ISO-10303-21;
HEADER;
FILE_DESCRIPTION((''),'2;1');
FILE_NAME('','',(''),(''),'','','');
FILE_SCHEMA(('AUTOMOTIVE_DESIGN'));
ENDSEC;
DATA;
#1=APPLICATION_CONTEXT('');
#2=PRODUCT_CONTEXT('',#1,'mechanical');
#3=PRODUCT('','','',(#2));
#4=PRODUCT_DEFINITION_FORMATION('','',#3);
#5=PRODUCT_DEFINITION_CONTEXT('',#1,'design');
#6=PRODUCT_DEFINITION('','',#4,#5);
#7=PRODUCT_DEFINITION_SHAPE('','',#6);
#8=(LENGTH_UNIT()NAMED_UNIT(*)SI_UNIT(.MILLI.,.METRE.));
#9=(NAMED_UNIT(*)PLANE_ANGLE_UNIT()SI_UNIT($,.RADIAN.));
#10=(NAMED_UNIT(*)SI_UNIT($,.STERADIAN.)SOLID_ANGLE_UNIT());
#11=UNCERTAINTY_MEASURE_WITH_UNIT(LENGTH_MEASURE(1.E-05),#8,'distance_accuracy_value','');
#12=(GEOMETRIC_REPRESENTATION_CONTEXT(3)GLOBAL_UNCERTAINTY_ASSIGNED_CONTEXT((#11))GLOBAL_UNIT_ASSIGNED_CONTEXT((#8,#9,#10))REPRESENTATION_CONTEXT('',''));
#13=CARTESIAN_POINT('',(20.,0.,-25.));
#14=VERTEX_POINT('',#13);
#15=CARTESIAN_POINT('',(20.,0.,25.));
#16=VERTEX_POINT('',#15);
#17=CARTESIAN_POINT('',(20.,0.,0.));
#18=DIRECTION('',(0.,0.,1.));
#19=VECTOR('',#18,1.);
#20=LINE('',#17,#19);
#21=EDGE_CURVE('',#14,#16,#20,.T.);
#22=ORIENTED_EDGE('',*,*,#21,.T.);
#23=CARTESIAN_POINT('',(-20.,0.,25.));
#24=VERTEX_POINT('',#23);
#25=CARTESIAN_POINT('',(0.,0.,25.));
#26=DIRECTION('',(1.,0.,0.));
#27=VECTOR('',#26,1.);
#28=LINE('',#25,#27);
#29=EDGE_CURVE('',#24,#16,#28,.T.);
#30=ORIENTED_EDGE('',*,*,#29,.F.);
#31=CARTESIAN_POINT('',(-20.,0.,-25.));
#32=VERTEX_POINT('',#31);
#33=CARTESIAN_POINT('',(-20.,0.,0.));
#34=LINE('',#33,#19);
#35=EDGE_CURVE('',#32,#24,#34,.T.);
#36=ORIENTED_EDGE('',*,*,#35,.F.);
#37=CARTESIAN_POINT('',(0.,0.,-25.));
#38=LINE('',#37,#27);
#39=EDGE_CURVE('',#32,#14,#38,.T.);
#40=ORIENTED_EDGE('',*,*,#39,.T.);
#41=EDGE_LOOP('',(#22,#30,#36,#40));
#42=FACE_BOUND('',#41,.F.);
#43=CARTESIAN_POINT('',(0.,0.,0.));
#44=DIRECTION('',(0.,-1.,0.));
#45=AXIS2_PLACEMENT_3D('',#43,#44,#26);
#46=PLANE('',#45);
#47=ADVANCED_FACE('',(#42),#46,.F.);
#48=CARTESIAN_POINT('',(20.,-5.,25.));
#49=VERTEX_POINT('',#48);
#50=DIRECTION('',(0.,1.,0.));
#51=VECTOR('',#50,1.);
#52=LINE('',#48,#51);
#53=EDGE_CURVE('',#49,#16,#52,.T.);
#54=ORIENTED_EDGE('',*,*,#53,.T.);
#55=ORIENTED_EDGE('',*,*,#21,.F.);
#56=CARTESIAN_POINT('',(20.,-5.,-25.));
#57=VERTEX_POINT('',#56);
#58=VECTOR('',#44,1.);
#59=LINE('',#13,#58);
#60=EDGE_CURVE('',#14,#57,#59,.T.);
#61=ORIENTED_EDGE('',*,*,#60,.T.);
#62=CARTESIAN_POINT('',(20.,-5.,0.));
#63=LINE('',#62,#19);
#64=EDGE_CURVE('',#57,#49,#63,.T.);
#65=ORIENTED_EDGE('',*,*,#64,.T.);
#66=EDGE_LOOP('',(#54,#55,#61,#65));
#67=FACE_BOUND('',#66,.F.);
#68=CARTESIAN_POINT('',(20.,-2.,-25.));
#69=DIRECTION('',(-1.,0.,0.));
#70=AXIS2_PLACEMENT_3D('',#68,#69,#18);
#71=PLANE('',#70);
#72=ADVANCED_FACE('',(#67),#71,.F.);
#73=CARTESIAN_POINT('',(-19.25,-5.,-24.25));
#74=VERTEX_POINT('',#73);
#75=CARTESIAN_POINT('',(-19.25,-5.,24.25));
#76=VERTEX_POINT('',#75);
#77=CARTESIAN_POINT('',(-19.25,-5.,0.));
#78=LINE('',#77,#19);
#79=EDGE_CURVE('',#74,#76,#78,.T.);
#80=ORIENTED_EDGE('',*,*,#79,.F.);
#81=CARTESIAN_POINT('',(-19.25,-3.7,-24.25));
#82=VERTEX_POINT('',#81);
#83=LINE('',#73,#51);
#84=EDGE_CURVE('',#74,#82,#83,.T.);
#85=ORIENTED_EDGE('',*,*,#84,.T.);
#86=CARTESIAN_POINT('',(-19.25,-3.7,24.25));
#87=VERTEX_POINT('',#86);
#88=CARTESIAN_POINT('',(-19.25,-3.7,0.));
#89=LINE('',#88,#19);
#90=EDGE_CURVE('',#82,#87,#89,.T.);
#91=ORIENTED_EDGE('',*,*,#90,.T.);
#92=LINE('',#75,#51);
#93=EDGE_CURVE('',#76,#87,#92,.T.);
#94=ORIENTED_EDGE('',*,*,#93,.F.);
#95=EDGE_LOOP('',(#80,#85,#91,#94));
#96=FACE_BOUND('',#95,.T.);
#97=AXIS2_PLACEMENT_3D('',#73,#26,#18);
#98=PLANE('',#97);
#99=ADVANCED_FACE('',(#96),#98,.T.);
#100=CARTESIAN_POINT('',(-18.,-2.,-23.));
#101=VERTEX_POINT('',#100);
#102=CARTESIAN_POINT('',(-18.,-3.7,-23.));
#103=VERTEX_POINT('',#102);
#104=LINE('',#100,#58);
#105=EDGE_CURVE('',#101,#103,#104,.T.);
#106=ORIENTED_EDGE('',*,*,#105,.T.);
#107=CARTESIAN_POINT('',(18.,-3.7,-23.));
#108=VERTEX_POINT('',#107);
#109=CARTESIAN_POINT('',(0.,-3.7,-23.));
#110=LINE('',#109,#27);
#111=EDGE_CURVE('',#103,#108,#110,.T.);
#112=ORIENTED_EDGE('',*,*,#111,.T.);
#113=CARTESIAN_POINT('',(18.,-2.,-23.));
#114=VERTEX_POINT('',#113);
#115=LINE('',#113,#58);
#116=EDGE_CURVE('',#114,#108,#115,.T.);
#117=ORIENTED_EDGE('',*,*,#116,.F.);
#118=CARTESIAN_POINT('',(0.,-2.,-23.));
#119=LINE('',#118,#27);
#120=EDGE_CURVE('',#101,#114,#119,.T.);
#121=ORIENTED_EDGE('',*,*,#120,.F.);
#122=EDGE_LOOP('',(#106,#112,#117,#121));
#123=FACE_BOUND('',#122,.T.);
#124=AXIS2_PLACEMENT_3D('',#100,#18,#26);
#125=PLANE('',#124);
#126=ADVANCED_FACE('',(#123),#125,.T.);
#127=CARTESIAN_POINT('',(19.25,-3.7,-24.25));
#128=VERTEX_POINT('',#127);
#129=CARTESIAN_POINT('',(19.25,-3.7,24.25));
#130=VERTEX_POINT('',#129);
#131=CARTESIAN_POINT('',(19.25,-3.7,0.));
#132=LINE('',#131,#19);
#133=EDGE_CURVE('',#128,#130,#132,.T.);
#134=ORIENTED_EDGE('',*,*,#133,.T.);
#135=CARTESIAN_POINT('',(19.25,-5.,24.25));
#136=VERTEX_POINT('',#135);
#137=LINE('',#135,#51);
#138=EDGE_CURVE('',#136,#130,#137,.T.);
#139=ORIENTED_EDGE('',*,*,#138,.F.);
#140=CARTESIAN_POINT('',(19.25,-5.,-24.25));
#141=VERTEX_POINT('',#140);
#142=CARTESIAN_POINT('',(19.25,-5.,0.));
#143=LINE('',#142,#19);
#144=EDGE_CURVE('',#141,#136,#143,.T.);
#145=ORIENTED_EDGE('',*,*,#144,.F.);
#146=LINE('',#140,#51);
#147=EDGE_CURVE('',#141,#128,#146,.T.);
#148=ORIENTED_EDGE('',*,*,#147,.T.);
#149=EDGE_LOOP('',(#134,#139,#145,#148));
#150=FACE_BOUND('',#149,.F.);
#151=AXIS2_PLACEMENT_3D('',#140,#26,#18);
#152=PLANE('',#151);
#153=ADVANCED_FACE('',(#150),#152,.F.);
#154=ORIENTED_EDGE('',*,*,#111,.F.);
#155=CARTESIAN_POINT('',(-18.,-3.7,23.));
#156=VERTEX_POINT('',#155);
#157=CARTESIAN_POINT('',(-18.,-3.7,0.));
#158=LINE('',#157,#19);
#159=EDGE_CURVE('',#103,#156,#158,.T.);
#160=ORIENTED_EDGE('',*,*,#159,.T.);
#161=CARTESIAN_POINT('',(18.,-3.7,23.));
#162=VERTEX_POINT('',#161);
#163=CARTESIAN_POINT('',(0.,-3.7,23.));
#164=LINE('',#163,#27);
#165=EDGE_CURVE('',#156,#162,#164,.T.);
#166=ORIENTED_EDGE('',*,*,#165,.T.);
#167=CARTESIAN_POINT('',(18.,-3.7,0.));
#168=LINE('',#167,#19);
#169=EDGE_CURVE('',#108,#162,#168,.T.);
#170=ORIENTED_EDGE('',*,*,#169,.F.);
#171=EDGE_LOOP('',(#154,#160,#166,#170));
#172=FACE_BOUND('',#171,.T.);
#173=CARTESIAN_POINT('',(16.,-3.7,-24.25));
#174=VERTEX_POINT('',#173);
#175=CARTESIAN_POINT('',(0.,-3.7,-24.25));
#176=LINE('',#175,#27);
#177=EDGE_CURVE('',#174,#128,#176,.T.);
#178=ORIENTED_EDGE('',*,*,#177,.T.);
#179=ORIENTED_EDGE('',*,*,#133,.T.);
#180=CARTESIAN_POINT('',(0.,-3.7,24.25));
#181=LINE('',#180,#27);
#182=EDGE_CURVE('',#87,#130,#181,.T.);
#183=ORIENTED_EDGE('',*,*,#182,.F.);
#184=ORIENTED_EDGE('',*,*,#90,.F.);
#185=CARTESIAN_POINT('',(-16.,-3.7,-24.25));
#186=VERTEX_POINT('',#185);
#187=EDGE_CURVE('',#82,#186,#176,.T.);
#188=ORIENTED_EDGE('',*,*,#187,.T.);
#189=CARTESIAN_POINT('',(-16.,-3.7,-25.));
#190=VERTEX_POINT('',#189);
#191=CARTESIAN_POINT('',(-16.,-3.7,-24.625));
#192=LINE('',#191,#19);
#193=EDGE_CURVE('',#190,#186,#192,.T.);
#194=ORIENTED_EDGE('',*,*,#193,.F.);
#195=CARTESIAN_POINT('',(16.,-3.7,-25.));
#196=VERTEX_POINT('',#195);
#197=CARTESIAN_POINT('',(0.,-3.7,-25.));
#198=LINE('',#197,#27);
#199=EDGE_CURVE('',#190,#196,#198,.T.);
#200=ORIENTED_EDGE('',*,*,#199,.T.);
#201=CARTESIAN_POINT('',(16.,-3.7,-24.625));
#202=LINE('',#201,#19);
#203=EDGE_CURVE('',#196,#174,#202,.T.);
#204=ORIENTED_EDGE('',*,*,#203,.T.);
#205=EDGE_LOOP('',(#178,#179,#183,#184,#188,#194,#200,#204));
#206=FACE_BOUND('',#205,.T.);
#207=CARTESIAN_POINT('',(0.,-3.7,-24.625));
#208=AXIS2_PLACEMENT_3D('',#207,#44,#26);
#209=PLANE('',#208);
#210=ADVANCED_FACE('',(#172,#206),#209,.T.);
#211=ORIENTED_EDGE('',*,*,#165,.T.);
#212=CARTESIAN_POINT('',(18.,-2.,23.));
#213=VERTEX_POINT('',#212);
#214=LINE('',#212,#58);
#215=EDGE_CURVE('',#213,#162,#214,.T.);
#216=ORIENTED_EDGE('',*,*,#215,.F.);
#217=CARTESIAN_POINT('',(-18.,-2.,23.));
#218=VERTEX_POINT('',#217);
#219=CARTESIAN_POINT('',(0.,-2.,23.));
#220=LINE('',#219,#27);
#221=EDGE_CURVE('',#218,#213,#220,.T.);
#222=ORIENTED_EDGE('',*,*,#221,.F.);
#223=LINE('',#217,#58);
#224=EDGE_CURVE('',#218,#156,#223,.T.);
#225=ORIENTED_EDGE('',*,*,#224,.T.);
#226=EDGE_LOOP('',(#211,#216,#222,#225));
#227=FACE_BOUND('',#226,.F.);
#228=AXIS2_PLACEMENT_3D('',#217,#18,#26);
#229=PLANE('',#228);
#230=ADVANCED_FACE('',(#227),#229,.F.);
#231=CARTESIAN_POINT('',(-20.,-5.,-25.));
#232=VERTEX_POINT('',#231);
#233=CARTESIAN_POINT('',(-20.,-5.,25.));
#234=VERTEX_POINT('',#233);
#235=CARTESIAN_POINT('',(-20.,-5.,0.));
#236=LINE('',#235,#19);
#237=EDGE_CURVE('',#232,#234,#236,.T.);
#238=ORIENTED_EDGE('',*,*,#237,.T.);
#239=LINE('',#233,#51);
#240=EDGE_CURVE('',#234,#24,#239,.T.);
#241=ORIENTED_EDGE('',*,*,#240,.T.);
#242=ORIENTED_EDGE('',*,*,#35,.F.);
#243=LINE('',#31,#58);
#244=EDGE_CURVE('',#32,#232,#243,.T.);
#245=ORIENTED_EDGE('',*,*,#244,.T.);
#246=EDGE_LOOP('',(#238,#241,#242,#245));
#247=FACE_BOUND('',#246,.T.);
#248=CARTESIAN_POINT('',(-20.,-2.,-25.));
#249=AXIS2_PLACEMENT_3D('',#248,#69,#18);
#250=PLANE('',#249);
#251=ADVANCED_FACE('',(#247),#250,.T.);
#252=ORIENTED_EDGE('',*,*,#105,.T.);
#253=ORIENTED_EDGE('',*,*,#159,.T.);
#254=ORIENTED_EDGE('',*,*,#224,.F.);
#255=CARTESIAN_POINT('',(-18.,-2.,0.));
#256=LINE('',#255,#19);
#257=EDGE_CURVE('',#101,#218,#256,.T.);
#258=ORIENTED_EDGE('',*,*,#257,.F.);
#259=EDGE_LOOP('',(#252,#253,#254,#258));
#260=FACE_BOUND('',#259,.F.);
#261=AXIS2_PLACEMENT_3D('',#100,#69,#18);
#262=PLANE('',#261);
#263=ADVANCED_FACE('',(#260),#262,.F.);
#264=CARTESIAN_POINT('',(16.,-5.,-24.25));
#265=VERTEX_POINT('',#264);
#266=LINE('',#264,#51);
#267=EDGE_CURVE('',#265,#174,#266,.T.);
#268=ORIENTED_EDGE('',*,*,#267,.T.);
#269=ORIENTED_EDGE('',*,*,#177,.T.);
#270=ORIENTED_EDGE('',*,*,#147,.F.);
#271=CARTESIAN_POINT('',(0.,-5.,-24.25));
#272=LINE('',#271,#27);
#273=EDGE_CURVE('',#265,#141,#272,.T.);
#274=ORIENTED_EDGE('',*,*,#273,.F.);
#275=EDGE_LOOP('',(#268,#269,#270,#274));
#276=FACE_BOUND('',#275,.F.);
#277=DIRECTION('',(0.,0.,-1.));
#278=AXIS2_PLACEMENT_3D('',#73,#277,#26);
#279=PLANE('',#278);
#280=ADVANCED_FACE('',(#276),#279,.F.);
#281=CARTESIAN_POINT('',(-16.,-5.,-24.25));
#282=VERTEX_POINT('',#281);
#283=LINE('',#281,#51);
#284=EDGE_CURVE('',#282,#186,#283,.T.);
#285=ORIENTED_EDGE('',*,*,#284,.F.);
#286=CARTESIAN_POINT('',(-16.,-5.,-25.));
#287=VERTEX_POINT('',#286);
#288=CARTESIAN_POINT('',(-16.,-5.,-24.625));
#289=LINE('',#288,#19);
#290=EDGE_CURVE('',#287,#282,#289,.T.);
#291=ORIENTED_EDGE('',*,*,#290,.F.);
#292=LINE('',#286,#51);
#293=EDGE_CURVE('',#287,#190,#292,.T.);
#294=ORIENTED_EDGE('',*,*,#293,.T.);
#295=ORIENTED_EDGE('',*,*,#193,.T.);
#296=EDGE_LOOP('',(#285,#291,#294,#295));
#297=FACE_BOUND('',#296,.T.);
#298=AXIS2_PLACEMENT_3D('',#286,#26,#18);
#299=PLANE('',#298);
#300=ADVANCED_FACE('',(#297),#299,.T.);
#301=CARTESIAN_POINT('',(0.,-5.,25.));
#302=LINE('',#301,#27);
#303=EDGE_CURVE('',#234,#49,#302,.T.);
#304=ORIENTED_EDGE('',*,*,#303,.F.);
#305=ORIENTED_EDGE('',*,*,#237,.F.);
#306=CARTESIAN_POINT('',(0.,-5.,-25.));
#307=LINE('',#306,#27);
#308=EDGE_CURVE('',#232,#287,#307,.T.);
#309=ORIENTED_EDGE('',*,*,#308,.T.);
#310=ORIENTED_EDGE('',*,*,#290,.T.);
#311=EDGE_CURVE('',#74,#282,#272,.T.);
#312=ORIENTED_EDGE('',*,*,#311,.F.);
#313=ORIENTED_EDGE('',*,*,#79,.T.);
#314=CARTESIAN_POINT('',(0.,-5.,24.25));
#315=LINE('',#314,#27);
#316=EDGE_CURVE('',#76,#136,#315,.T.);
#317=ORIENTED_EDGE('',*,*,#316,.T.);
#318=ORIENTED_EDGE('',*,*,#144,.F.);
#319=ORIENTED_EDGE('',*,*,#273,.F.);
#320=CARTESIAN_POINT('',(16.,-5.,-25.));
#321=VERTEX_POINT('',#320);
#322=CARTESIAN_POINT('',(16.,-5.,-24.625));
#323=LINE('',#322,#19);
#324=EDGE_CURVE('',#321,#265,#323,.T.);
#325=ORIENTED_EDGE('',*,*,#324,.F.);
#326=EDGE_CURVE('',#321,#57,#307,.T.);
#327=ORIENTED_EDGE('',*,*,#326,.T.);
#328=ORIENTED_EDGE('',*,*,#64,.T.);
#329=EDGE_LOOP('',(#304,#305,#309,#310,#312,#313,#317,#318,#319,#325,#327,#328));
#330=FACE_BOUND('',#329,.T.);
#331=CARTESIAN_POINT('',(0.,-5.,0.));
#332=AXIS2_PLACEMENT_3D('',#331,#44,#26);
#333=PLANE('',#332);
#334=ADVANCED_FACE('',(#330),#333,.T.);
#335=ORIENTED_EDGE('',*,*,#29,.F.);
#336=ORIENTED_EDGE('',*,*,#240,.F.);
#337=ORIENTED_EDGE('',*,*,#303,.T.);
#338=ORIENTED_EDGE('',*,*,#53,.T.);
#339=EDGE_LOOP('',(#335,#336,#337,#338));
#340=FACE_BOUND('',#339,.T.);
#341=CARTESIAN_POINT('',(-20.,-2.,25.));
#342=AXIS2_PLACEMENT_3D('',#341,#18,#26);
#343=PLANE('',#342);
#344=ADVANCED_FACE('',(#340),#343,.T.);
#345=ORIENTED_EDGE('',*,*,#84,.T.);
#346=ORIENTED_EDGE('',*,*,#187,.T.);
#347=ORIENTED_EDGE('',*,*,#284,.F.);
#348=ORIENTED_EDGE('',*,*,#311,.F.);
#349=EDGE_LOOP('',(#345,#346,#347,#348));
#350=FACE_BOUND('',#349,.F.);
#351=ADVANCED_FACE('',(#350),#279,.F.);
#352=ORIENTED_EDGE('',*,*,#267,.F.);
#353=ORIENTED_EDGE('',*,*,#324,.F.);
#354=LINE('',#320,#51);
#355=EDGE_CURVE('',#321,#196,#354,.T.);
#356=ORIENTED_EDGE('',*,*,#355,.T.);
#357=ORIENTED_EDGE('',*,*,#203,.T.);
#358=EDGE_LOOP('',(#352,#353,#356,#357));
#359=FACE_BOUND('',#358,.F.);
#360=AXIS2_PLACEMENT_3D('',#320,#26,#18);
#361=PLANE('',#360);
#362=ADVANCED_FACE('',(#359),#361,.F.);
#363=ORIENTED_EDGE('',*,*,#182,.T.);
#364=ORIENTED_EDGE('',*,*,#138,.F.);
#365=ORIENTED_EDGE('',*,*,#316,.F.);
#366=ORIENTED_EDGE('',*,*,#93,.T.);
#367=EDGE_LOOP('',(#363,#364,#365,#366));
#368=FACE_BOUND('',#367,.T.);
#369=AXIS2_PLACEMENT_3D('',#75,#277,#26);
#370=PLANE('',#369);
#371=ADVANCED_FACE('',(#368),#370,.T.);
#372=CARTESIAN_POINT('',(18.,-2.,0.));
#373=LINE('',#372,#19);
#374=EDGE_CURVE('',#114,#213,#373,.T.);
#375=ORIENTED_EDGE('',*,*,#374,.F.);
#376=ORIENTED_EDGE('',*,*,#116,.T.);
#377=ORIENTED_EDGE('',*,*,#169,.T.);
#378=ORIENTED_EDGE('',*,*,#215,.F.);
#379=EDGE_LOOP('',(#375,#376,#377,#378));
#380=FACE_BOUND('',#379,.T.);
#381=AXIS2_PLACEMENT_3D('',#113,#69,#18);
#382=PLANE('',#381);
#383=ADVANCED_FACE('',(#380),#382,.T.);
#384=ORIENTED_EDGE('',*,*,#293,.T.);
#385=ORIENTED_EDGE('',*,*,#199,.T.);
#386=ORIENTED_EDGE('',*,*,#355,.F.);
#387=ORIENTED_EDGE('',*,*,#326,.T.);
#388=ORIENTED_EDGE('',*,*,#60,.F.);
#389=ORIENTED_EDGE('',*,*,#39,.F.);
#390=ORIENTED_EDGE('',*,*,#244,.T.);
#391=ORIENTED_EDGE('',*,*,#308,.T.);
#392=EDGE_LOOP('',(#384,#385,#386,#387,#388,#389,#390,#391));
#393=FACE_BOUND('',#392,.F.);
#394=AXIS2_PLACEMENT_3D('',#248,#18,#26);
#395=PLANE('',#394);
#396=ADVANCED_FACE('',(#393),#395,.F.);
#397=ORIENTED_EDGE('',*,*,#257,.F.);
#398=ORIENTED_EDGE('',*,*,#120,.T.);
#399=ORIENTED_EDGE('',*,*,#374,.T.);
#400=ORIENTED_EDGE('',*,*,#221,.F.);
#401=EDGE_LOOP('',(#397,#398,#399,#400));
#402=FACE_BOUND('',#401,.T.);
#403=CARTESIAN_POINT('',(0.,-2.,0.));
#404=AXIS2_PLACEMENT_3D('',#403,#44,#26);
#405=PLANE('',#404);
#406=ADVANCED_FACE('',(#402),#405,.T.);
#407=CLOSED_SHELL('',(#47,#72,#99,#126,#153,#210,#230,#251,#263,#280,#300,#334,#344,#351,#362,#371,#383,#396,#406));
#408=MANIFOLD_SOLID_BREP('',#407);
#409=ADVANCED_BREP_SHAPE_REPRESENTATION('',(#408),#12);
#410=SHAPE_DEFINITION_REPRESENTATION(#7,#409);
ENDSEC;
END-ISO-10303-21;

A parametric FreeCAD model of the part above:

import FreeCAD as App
import Part
import Sketcher
from FreeCAD import Vector

doc = App.newDocument("Part")
body = doc.addObject("PartDesign::Body", "Body")

sketch1 = body.newObject("Sketcher::SketchObject", "Sketch")
sketch1.AttachmentSupport = (doc.getObject("XZ_Plane"), [""])
sketch1.MapMode = "FlatFace"
sketch1.addGeometry([
    Part.LineSegment(Vector(-20, 25, 0), Vector(-20, -25, 0)),
    Part.LineSegment(Vector(-20, -25, 0), Vector(20, -25, 0)),
    Part.LineSegment(Vector(20, -25, 0), Vector(20, 25, 0)),
    Part.LineSegment(Vector(20, 25, 0), Vector(-20, 25, 0)),
], False)
sketch1.addConstraint([
    Sketcher.Constraint("Coincident", 0, 2, 1, 1),
    Sketcher.Constraint("Coincident", 1, 2, 2, 1),
    Sketcher.Constraint("Coincident", 2, 2, 3, 1),
    Sketcher.Constraint("Coincident", 3, 2, 0, 1),
    Sketcher.Constraint("Vertical", 0),
    Sketcher.Constraint("Horizontal", 1),
    Sketcher.Constraint("Vertical", 2),
    Sketcher.Constraint("Horizontal", 3),
    Sketcher.Constraint("Symmetric", 0, 2, 2, 2, -1, 1),
    Sketcher.Constraint("DistanceX", 1, 1, 1, 2, 40.0),
    Sketcher.Constraint("DistanceY", 0, 2, 0, 1, 50.0),
])
pad1 = body.newObject("PartDesign::Pad", "Pad")
pad1.Profile = sketch1
pad1.Length = 2

sketch2 = body.newObject("Sketcher::SketchObject", "Sketch001")
sketch2.AttachmentSupport = (doc.getObject("XZ_Plane"), [""])
sketch2.MapMode = "FlatFace"
sketch2.AttachmentOffset = App.Placement(Vector(0, 0, 2), App.Rotation())
sketch2.addGeometry([
    Part.LineSegment(Vector(-20, 25, 0), Vector(-20, -25, 0)),
    Part.LineSegment(Vector(-20, -25, 0), Vector(20, -25, 0)),
    Part.LineSegment(Vector(20, -25, 0), Vector(20, 25, 0)),
    Part.LineSegment(Vector(20, 25, 0), Vector(-20, 25, 0)),
    Part.LineSegment(Vector(18, -23, 0), Vector(-18, -23, 0)),
    Part.LineSegment(Vector(-18, -23, 0), Vector(-18, 23, 0)),
    Part.LineSegment(Vector(-18, 23, 0), Vector(18, 23, 0)),
    Part.LineSegment(Vector(18, 23, 0), Vector(18, -23, 0)),
], False)
sketch2.addConstraint([
    Sketcher.Constraint("Coincident", 0, 2, 1, 1),
    Sketcher.Constraint("Coincident", 1, 2, 2, 1),
    Sketcher.Constraint("Coincident", 2, 2, 3, 1),
    Sketcher.Constraint("Coincident", 3, 2, 0, 1),
    Sketcher.Constraint("Coincident", 4, 2, 5, 1),
    Sketcher.Constraint("Coincident", 5, 2, 6, 1),
    Sketcher.Constraint("Coincident", 6, 2, 7, 1),
    Sketcher.Constraint("Coincident", 7, 2, 4, 1),
    Sketcher.Constraint("Vertical", 0),
    Sketcher.Constraint("Horizontal", 1),
    Sketcher.Constraint("Vertical", 2),
    Sketcher.Constraint("Horizontal", 3),
    Sketcher.Constraint("Horizontal", 4),
    Sketcher.Constraint("Vertical", 5),
    Sketcher.Constraint("Horizontal", 6),
    Sketcher.Constraint("Vertical", 7),
    Sketcher.Constraint("Symmetric", 0, 2, 2, 2, -1, 1),
    Sketcher.Constraint("Symmetric", 4, 2, 6, 2, -1, 1),
    Sketcher.Constraint("DistanceX", 1, 1, 1, 2, 40.0),
    Sketcher.Constraint("DistanceX", 4, 2, 4, 1, 36.0),
    Sketcher.Constraint("DistanceY", 0, 2, 0, 1, 50.0),
    Sketcher.Constraint("DistanceY", 5, 1, 5, 2, 46.0),
])
pad2 = body.newObject("PartDesign::Pad", "Pad001")
pad2.Profile = sketch2
pad2.Length = 3

sketch3 = body.newObject("Sketcher::SketchObject", "Sketch002")
sketch3.AttachmentSupport = (doc.getObject("XZ_Plane"), [""])
sketch3.MapMode = "FlatFace"
sketch3.AttachmentOffset = App.Placement(Vector(0, 0, 5), App.Rotation())
sketch3.addGeometry([
    Part.LineSegment(Vector(-19, 24, 0), Vector(-19, -24, 0)),
    Part.LineSegment(Vector(-19, -24, 0), Vector(19, -24, 0)),
    Part.LineSegment(Vector(19, -24, 0), Vector(19, 24, 0)),
    Part.LineSegment(Vector(19, 24, 0), Vector(-19, 24, 0)),
    Part.LineSegment(Vector(18, -23, 0), Vector(-18, -23, 0)),
    Part.LineSegment(Vector(-18, -23, 0), Vector(-18, 23, 0)),
    Part.LineSegment(Vector(-18, 23, 0), Vector(18, 23, 0)),
    Part.LineSegment(Vector(18, 23, 0), Vector(18, -23, 0)),
], False)
sketch3.addConstraint([
    Sketcher.Constraint("Coincident", 0, 2, 1, 1),
    Sketcher.Constraint("Coincident", 1, 2, 2, 1),
    Sketcher.Constraint("Coincident", 2, 2, 3, 1),
    Sketcher.Constraint("Coincident", 3, 2, 0, 1),
    Sketcher.Constraint("Coincident", 4, 2, 5, 1),
    Sketcher.Constraint("Coincident", 5, 2, 6, 1),
    Sketcher.Constraint("Coincident", 6, 2, 7, 1),
    Sketcher.Constraint("Coincident", 7, 2, 4, 1),
    Sketcher.Constraint("Vertical", 0),
    Sketcher.Constraint("Horizontal", 1),
    Sketcher.Constraint("Vertical", 2),
    Sketcher.Constraint("Horizontal", 3),
    Sketcher.Constraint("Horizontal", 4),
    Sketcher.Constraint("Vertical", 5),
    Sketcher.Constraint("Horizontal", 6),
    Sketcher.Constraint("Vertical", 7),
    Sketcher.Constraint("Symmetric", 0, 2, 2, 2, -1, 1),
    Sketcher.Constraint("Symmetric", 4, 2, 6, 2, -1, 1),
    Sketcher.Constraint("DistanceX", 4, 2, 4, 1, 36.0),
    Sketcher.Constraint("DistanceY", 5, 1, 5, 2, 46.0),
    Sketcher.Constraint("DistanceX", 1, 1, 1, 2, 38.5),
    Sketcher.Constraint("DistanceY", 0, 2, 0, 1, 48.5),
])
pocket1 = body.newObject("PartDesign::Pocket", "Pocket")
pocket1.Profile = sketch3
pocket1.Length = 1.3

sketch4 = body.newObject("Sketcher::SketchObject", "Sketch003")
sketch4.AttachmentSupport = (doc.getObject("XZ_Plane"), [""])
sketch4.MapMode = "FlatFace"
sketch4.AttachmentOffset = App.Placement(Vector(0, 0, 5), App.Rotation())
sketch4.addGeometry([
    Part.LineSegment(Vector(-16, -24.2, 0), Vector(-16, -25, 0)),
    Part.LineSegment(Vector(-16, -25, 0), Vector(16, -25, 0)),
    Part.LineSegment(Vector(16, -25, 0), Vector(16, -24.2, 0)),
    Part.LineSegment(Vector(16, -24.2, 0), Vector(-16, -24.2, 0)),
], False)
sketch4.addConstraint([
    Sketcher.Constraint("Coincident", 0, 2, 1, 1),
    Sketcher.Constraint("Coincident", 1, 2, 2, 1),
    Sketcher.Constraint("Coincident", 2, 2, 3, 1),
    Sketcher.Constraint("Coincident", 3, 2, 0, 1),
    Sketcher.Constraint("Vertical", 0),
    Sketcher.Constraint("Horizontal", 1),
    Sketcher.Constraint("Vertical", 2),
    Sketcher.Constraint("Horizontal", 3),
    Sketcher.Constraint("DistanceX", 1, 1, 1, 2, 32.0),
    Sketcher.Constraint("DistanceX", 0, 2, -1, 1, 16.0),
    Sketcher.Constraint("DistanceY", 0, 2, -1, 1, 25.0),
    Sketcher.Constraint("DistanceY", 0, 2, 0, 1, 0.75),
])
pocket2 = body.newObject("PartDesign::Pocket", "Pocket001")
pocket2.Profile = sketch4
pocket2.Length = 1.3

doc.recompute()
